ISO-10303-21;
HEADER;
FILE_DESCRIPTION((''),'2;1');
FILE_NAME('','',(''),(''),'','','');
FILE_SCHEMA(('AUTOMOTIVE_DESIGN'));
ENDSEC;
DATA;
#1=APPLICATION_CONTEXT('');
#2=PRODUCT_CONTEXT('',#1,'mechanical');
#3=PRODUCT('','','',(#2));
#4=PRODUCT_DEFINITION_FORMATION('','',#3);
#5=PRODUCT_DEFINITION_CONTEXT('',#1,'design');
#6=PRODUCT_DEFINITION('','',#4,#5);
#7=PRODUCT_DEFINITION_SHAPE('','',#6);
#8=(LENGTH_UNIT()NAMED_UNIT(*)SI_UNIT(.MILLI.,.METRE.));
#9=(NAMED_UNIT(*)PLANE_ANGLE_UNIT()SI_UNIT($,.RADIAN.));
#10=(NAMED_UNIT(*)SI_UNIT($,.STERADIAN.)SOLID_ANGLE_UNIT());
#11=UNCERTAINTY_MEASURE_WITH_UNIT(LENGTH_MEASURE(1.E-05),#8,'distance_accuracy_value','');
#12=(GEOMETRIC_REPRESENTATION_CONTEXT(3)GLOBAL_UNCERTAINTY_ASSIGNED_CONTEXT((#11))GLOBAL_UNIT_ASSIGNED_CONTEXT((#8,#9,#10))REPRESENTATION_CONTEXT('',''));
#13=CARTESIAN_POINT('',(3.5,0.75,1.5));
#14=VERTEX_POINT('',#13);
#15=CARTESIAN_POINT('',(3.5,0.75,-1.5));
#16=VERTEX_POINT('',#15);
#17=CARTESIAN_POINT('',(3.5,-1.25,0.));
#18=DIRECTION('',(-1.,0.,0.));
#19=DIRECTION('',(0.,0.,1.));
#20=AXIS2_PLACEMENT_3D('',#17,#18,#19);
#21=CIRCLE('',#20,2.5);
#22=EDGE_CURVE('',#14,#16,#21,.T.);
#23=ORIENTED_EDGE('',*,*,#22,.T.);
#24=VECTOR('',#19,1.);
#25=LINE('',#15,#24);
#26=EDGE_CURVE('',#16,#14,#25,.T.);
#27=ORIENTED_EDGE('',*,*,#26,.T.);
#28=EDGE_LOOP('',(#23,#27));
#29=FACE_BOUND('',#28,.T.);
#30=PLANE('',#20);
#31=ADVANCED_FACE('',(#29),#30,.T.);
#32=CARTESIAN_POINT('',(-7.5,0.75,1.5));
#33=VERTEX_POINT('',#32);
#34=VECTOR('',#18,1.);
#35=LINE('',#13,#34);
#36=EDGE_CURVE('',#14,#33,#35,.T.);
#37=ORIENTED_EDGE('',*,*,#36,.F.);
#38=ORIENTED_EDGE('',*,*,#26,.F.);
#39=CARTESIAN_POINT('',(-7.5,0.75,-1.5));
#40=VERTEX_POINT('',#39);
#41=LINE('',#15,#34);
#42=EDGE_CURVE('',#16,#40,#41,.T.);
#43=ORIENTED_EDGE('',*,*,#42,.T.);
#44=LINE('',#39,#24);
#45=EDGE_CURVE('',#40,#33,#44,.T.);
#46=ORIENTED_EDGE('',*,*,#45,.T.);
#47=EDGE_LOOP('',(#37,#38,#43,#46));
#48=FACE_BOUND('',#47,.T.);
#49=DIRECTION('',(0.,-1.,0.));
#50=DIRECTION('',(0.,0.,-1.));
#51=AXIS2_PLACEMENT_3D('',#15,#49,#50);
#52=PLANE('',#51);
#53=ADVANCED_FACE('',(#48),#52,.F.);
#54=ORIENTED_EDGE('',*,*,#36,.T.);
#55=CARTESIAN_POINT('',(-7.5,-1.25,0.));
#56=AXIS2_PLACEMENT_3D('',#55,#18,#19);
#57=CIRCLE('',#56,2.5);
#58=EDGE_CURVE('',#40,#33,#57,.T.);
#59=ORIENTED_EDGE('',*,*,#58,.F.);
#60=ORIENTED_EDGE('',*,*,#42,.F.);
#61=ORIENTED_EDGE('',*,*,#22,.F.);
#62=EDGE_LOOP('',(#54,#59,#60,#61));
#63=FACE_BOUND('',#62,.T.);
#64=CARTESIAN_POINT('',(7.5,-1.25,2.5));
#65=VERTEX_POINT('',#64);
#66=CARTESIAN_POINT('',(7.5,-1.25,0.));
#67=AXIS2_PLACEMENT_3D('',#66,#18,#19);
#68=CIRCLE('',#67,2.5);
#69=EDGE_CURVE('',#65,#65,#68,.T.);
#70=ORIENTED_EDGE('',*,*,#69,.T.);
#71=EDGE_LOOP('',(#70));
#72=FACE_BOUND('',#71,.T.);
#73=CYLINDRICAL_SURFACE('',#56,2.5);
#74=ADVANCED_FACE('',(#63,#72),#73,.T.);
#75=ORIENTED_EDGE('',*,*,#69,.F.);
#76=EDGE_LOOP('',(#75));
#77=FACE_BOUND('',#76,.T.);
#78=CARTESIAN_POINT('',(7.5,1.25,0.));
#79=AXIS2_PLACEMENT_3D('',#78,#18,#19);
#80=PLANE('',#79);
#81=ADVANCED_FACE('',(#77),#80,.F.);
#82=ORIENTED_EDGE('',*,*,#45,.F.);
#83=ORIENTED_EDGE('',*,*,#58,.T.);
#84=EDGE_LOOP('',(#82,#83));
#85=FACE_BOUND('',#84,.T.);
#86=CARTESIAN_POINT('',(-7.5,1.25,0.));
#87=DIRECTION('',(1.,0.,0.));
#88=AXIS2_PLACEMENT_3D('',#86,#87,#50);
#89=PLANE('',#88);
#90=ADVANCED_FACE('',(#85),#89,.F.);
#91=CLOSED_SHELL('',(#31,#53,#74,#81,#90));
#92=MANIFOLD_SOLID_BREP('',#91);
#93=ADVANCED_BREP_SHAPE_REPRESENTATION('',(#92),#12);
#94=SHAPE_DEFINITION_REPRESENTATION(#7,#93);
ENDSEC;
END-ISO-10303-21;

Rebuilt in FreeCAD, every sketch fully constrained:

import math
import FreeCAD as App
import Part
import Sketcher
from FreeCAD import Vector

doc = App.newDocument("Part")
body = doc.addObject("PartDesign::Body", "Body")

# Sketch on XY plane
sketch1 = body.newObject("Sketcher::SketchObject", "Sketch")
sketch1.AttachmentSupport = (doc.getObject("XY_Plane"), [""])
sketch1.MapMode = "FlatFace"
sketch1.addGeometry([
    Part.LineSegment(Vector(-7.5, 1.2, 0), Vector(-7.5, -1.2, 0)),
    Part.LineSegment(Vector(-7.5, -1.2, 0), Vector(7.5, -1.2, 0)),
    Part.LineSegment(Vector(7.5, -1.2, 0), Vector(7.5, 1.2, 0)),
    Part.LineSegment(Vector(7.5, 1.2, 0), Vector(-7.5, 1.2, 0)),
], False)
sketch1.addGeometry(Part.LineSegment(Vector(-7.5, -1.2, 0), Vector(7.5, -1.2, 0)), True)  # axis
sketch1.addConstraint([
    Sketcher.Constraint("Coincident", 0, 2, 1, 1),
    Sketcher.Constraint("Coincident", 1, 2, 2, 1),
    Sketcher.Constraint("Coincident", 2, 2, 3, 1),
    Sketcher.Constraint("Coincident", 3, 2, 0, 1),
    Sketcher.Constraint("Vertical", 0),
    Sketcher.Constraint("Horizontal", 1),
    Sketcher.Constraint("Vertical", 2),
    Sketcher.Constraint("Horizontal", 3),
    Sketcher.Constraint("Horizontal", 4),
    Sketcher.Constraint("Coincident", 4, 1, 0, 2),
    Sketcher.Constraint("Symmetric", 0, 2, 2, 2, -1, 1),
    Sketcher.Constraint("Vertical", 2, 2, 4, 2),
    Sketcher.Constraint("DistanceX", 1, 1, 1, 2, 15.0),
    Sketcher.Constraint("DistanceY", 0, 2, 0, 1, 2.5),
])
revolution = body.newObject("PartDesign::Revolution", "Revolution")
revolution.Profile = sketch1
revolution.ReferenceAxis = (sketch1, ["Axis0"])
revolution.Angle = 360

# Sketch on YZ plane
sketch2 = body.newObject("Sketcher::SketchObject", "Sketch001")
sketch2.AttachmentSupport = (doc.getObject("YZ_Plane"), [""])
sketch2.MapMode = "FlatFace"
sketch2.AttachmentOffset = App.Placement(Vector(0, 0, 3.5), App.Rotation())
sketch2.addGeometry([
    Part.LineSegment(Vector(0.8, -1.5, 0), Vector(0.8, 1.5, 0)),
    Part.ArcOfCircle(Part.Circle(Vector(-1.2, 0, 0), Vector(0, 0, 1), 2.5), math.radians(-37), math.radians(37)),
], False)
sketch2.addConstraint([
    Sketcher.Constraint("Coincident", 0, 1, 1, 1),
    Sketcher.Constraint("Coincident", 1, 2, 0, 2),
    Sketcher.Constraint("Vertical", 0),
    Sketcher.Constraint("PointOnObject", 1, 3, -1),
    Sketcher.Constraint("Radius", 1, 2.5),
    Sketcher.Constraint("DistanceY", 0, 1, 0, 2, 3.0),
    Sketcher.Constraint("DistanceX", 1, 3, -1, 1, 1.25),
])
pocket1 = body.newObject("PartDesign::Pocket", "Pocket")
pocket1.Profile = sketch2
pocket1.Length = 11

doc.recompute()
